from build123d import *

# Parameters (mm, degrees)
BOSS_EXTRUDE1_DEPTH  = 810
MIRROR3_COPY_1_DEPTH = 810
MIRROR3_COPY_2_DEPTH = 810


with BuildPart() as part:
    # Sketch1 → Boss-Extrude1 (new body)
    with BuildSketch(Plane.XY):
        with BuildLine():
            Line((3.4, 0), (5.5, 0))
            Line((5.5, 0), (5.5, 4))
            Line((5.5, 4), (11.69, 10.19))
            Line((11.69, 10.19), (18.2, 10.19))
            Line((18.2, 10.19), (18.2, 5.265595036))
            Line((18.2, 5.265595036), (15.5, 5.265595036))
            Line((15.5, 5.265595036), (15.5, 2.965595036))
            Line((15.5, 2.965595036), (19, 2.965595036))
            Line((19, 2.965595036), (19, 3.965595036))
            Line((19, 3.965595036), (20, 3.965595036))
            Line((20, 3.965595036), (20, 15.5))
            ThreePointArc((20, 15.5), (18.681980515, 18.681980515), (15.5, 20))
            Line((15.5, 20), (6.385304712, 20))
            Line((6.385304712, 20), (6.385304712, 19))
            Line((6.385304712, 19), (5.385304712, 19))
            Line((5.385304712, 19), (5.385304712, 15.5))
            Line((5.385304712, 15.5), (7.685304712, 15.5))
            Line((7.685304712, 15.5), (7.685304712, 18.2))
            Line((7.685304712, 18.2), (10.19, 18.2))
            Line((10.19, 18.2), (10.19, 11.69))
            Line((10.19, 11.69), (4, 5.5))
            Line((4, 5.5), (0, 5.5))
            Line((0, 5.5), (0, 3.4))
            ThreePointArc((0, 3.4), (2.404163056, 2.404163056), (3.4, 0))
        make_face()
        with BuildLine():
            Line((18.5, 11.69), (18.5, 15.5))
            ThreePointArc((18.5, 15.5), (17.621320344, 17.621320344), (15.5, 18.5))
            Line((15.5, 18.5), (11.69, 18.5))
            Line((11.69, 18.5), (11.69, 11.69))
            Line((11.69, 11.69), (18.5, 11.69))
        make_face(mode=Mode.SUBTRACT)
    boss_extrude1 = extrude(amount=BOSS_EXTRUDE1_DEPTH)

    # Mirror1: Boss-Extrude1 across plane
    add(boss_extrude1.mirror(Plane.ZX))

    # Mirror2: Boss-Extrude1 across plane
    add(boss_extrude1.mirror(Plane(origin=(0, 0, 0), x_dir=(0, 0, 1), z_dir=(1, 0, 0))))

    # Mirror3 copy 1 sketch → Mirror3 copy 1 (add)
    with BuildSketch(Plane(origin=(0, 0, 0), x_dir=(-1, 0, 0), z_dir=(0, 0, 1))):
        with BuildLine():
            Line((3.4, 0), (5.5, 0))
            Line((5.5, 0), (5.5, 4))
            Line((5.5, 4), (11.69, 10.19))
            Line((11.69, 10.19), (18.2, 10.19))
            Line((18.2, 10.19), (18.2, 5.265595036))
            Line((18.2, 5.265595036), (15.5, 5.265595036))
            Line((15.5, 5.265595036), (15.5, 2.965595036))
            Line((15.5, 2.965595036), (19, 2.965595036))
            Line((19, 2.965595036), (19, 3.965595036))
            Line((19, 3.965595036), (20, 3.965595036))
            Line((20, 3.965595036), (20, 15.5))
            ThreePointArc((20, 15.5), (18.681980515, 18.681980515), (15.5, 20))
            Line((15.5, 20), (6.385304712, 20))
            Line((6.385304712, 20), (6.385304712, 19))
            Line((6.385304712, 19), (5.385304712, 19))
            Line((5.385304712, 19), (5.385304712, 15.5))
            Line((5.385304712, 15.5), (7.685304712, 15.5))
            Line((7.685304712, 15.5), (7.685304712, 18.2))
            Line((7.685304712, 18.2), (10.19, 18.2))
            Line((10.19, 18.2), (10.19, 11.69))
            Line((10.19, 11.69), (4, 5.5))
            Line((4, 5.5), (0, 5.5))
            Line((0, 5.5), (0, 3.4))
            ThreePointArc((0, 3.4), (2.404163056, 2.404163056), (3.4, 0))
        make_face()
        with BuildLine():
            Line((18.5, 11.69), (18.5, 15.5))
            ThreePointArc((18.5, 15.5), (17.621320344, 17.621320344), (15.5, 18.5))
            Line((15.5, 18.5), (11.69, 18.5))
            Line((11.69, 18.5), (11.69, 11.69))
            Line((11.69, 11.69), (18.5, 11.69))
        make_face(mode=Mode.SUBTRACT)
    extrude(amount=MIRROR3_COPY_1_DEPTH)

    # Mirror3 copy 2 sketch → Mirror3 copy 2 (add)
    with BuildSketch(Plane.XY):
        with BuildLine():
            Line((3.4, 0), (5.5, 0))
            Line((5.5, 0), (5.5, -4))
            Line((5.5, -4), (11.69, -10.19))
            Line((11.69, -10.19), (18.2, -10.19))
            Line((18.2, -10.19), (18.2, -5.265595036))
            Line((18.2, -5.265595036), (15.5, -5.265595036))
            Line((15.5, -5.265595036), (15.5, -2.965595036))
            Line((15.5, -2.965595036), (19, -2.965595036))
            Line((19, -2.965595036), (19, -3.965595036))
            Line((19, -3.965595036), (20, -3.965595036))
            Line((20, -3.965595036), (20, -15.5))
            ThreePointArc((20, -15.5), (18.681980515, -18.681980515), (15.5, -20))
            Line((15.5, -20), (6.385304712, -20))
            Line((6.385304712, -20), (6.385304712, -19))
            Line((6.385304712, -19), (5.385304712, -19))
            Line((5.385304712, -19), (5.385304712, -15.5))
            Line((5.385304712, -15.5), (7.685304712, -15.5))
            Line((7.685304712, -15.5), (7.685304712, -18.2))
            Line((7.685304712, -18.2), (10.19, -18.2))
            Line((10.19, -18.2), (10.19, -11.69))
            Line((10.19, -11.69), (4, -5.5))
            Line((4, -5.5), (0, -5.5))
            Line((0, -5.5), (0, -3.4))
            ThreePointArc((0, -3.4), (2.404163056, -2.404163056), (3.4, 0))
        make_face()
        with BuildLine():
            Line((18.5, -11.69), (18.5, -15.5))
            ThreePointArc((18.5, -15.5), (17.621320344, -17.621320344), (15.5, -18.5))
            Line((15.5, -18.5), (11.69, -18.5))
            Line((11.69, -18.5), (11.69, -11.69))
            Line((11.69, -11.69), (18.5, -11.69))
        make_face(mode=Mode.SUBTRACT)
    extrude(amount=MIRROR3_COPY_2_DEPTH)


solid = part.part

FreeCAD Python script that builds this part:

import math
import FreeCAD as App
import Part
import Sketcher
from FreeCAD import Vector
Q = App.Units.Quantity

doc = App.newDocument("Part")
params = doc.addObject("Spreadsheet::Sheet", "Params")
for row, (alias, value) in enumerate([
    ("sketch1_radius", "3 mm"),
    ("sketch1_radius2", "4.5 mm"),
    ("sketch1_radius3", "3.4 mm"),
    ("sketch1_width", "1 mm"),
    ("sketch1_width2", "4 mm"),
    ("pad1_length", "810 mm"),
    ("sketch2_radius", "3 mm"),
    ("sketch2_radius2", "4.5 mm"),
    ("sketch2_radius3", "3.4 mm"),
    ("sketch2_width", "1 mm"),
    ("sketch2_width2", "4 mm"),
    ("pad2_length", "810 mm"),
    ("sketch3_radius", "3 mm"),
    ("sketch3_radius2", "3.4 mm"),
    ("sketch3_radius3", "4.5 mm"),
    ("sketch3_width", "4 mm"),
    ("sketch3_width2", "1 mm"),
    ("pad3_length", "810 mm"),
], start=1):
    params.set(f"A{row}", alias)
    params.set(f"B{row}", "=" + value)
    params.setAlias(f"B{row}", alias)

body = doc.addObject("PartDesign::Body", "Body")

sketch1 = body.newObject("Sketcher::SketchObject", "Sketch")
sketch1.AttachmentSupport = (doc.getObject("XY_Plane"), [""])
sketch1.MapMode = "FlatFace"
sketch1.addGeometry(Part.LineSegment(Vector(3.4, 0, 0), Vector(5.5, 0, 0)), False)
sketch1.addGeometry(Part.LineSegment(Vector(5.5, 0, 0), Vector(5.5, 4, 0)), False)
sketch1.addGeometry(Part.LineSegment(Vector(5.5, 4, 0), Vector(11.7, 10.2, 0)), False)
sketch1.addGeometry(Part.LineSegment(Vector(11.7, 10.2, 0), Vector(18.2, 10.2, 0)), False)
sketch1.addGeometry(Part.LineSegment(Vector(18.2, 10.2, 0), Vector(18.2, 5.3, 0)), False)
sketch1.addGeometry(Part.LineSegment(Vector(18.2, 5.3, 0), Vector(15.5, 5.3, 0)), False)
sketch1.addGeometry(Part.LineSegment(Vector(15.5, 5.3, 0), Vector(15.5, 3, 0)), False)
sketch1.addGeometry(Part.LineSegment(Vector(15.5, 3, 0), Vector(19, 3, 0)), False)
sketch1.addGeometry(Part.LineSegment(Vector(19, 3, 0), Vector(19, 4, 0)), False)
sketch1.addGeometry(Part.LineSegment(Vector(19, 4, 0), Vector(20, 4, 0)), False)
sketch1.addGeometry(Part.LineSegment(Vector(20, 4, 0), Vector(20, 15.5, 0)), False)
sketch1.addGeometry(Part.ArcOfCircle(Part.Circle(Vector(15.5, 15.5, 0), Vector(0, 0, 1), 4.5), math.radians(0), math.radians(90)), False)
sketch1.addGeometry(Part.LineSegment(Vector(15.5, 20, 0), Vector(6.4, 20, 0)), False)
sketch1.addGeometry(Part.LineSegment(Vector(6.4, 20, 0), Vector(6.4, 19, 0)), False)
sketch1.addGeometry(Part.LineSegment(Vector(6.4, 19, 0), Vector(5.4, 19, 0)), False)
sketch1.addGeometry(Part.LineSegment(Vector(5.4, 19, 0), Vector(5.4, 15.5, 0)), False)
sketch1.addGeometry(Part.LineSegment(Vector(5.4, 15.5, 0), Vector(7.7, 15.5, 0)), False)
sketch1.addGeometry(Part.LineSegment(Vector(7.7, 15.5, 0), Vector(7.7, 18.2, 0)), False)
sketch1.addGeometry(Part.LineSegment(Vector(7.7, 18.2, 0), Vector(10.2, 18.2, 0)), False)
sketch1.addGeometry(Part.LineSegment(Vector(10.2, 18.2, 0), Vector(10.2, 11.7, 0)), False)
sketch1.addGeometry(Part.LineSegment(Vector(10.2, 11.7, 0), Vector(4, 5.5, 0)), False)
sketch1.addGeometry(Part.LineSegment(Vector(4, 5.5, 0), Vector(0, 5.5, 0)), False)
sketch1.addGeometry(Part.LineSegment(Vector(0, 5.5, 0), Vector(0, 3.4, 0)), False)
sketch1.addGeometry(Part.ArcOfCircle(Part.Circle(Vector(0, 0, 0), Vector(0, 0, 1), 3.4), math.radians(0), math.radians(90)), False)
sketch1.addGeometry(Part.LineSegment(Vector(18.5, 15.5, 0), Vector(18.5, 11.7, 0)), False)
sketch1.addGeometry(Part.LineSegment(Vector(18.5, 11.7, 0), Vector(11.7, 11.7, 0)), False)
sketch1.addGeometry(Part.LineSegment(Vector(11.7, 11.7, 0), Vector(11.7, 18.5, 0)), False)
sketch1.addGeometry(Part.LineSegment(Vector(11.7, 18.5, 0), Vector(15.5, 18.5, 0)), False)
sketch1.addGeometry(Part.ArcOfCircle(Part.Circle(Vector(15.5, 15.5, 0), Vector(0, 0, 1), 3), math.radians(0), math.radians(90)), False)
sketch1.addConstraint(Sketcher.Constraint("Coincident", 0, 2, 1, 1))
sketch1.addConstraint(Sketcher.Constraint("Coincident", 1, 2, 2, 1))
sketch1.addConstraint(Sketcher.Constraint("Coincident", 2, 2, 3, 1))
sketch1.addConstraint(Sketcher.Constraint("Coincident", 3, 2, 4, 1))
sketch1.addConstraint(Sketcher.Constraint("Coincident", 4, 2, 5, 1))
sketch1.addConstraint(Sketcher.Constraint("Coincident", 5, 2, 6, 1))
sketch1.addConstraint(Sketcher.Constraint("Coincident", 6, 2, 7, 1))
sketch1.addConstraint(Sketcher.Constraint("Coincident", 7, 2, 8, 1))
sketch1.addConstraint(Sketcher.Constraint("Coincident", 8, 2, 9, 1))
sketch1.addConstraint(Sketcher.Constraint("Coincident", 9, 2, 10, 1))
sketch1.addConstraint(Sketcher.Constraint("Tangent", 10, 2, 11, 1))
sketch1.addConstraint(Sketcher.Constraint("Tangent", 11, 2, 12, 1))
sketch1.addConstraint(Sketcher.Constraint("Coincident", 12, 2, 13, 1))
sketch1.addConstraint(Sketcher.Constraint("Coincident", 13, 2, 14, 1))
sketch1.addConstraint(Sketcher.Constraint("Coincident", 14, 2, 15, 1))
sketch1.addConstraint(Sketcher.Constraint("Coincident", 15, 2, 16, 1))
sketch1.addConstraint(Sketcher.Constraint("Coincident", 16, 2, 17, 1))
sketch1.addConstraint(Sketcher.Constraint("Coincident", 17, 2, 18, 1))
sketch1.addConstraint(Sketcher.Constraint("Coincident", 18, 2, 19, 1))
sketch1.addConstraint(Sketcher.Constraint("Coincident", 19, 2, 20, 1))
sketch1.addConstraint(Sketcher.Constraint("Coincident", 20, 2, 21, 1))
sketch1.addConstraint(Sketcher.Constraint("Coincident", 21, 2, 22, 1))
sketch1.addConstraint(Sketcher.Constraint("Coincident", 22, 2, 23, 2))
sketch1.addConstraint(Sketcher.Constraint("Coincident", 23, 1, 0, 1))
sketch1.addConstraint(Sketcher.Constraint("Coincident", 24, 2, 25, 1))
sketch1.addConstraint(Sketcher.Constraint("Coincident", 25, 2, 26, 1))
sketch1.addConstraint(Sketcher.Constraint("Coincident", 26, 2, 27, 1))
sketch1.addConstraint(Sketcher.Constraint("Tangent", 27, 2, 28, 2))
sketch1.addConstraint(Sketcher.Constraint("Tangent", 28, 1, 24, 1))
sketch1.addConstraint(Sketcher.Constraint("Horizontal", 0))
sketch1.addConstraint(Sketcher.Constraint("Vertical", 1))
sketch1.addConstraint(Sketcher.Constraint("Horizontal", 3))
sketch1.addConstraint(Sketcher.Constraint("Vertical", 4))
sketch1.addConstraint(Sketcher.Constraint("Horizontal", 5))
sketch1.addConstraint(Sketcher.Constraint("Vertical", 6))
sketch1.addConstraint(Sketcher.Constraint("Horizontal", 7))
sketch1.addConstraint(Sketcher.Constraint("Vertical", 8))
sketch1.addConstraint(Sketcher.Constraint("Horizontal", 9))
sketch1.addConstraint(Sketcher.Constraint("Vertical", 10))
sketch1.addConstraint(Sketcher.Constraint("Horizontal", 12))
sketch1.addConstraint(Sketcher.Constraint("Vertical", 13))
sketch1.addConstraint(Sketcher.Constraint("Horizontal", 14))
sketch1.addConstraint(Sketcher.Constraint("Vertical", 15))
sketch1.addConstraint(Sketcher.Constraint("Horizontal", 16))
sketch1.addConstraint(Sketcher.Constraint("Vertical", 17))
sketch1.addConstraint(Sketcher.Constraint("Horizontal", 18))
sketch1.addConstraint(Sketcher.Constraint("Vertical", 19))
sketch1.addConstraint(Sketcher.Constraint("Horizontal", 21))
sketch1.addConstraint(Sketcher.Constraint("Vertical", 22))
sketch1.addConstraint(Sketcher.Constraint("Vertical", 24))
sketch1.addConstraint(Sketcher.Constraint("Horizontal", 25))
sketch1.addConstraint(Sketcher.Constraint("Vertical", 26))
sketch1.addConstraint(Sketcher.Constraint("Horizontal", 27))
sketch1.addConstraint(Sketcher.Constraint("Coincident", 23, 3, -1, 1))
sketch1.addConstraint(Sketcher.Constraint("Coincident", 28, 3, 11, 3))
sketch1.addConstraint(Sketcher.Constraint("PointOnObject", 0, 2, -1))
sketch1.addConstraint(Sketcher.Constraint("PointOnObject", 21, 2, -2))
sketch1.addConstraint(Sketcher.Constraint("Parallel", 2, 20))
sketch1.addConstraint(Sketcher.Constraint("Horizontal", 10, 2, 15, 2))
sketch1.addConstraint(Sketcher.Constraint("Horizontal", 19, 2, 24, 2))
sketch1.addConstraint(Sketcher.Constraint("Vertical", 28, 3, 5, 2))
sketch1.addConstraint(Sketcher.Constraint("Vertical", 2, 2, 25, 2))
sketch1.addConstraint(Sketcher.Constraint("Equal", 9, 14))
sketch1.addConstraint(Sketcher.Constraint("Equal", 21, 1))
sketch1.addConstraint(Sketcher.Constraint("Equal", 16, 6))
sketch1.addConstraint(Sketcher.Constraint("Equal", 14, 8))
sketch1.addConstraint(Sketcher.Constraint("Equal", 8, 13))
sketch1.addConstraint(Sketcher.Constraint("Equal", 5, 17))
sketch1.addConstraint(Sketcher.Constraint("Equal", 3, 19))
sketch1.addConstraint(Sketcher.Constraint("Equal", 0, 22))
sketch1.addConstraint(Sketcher.Constraint("Equal", 2, 20))
sketch1.addConstraint(Sketcher.Constraint("Radius", 28, 3.0))
sketch1.addConstraint(Sketcher.Constraint("Radius", 11, 4.5))
sketch1.addConstraint(Sketcher.Constraint("Radius", 23, 3.4))
sketch1.addConstraint(Sketcher.Constraint("DistanceX", 9, 1, 9, 2, 1.0))
sketch1.addConstraint(Sketcher.Constraint("DistanceX", 21, 2, 21, 1, 4.0))
sketch1.addConstraint(Sketcher.Constraint("Angle", 2, Q("45 deg")))
sketch1.addConstraint(Sketcher.Constraint("DistanceX", 0, 1, 0, 2, 2.1))
sketch1.addConstraint(Sketcher.Constraint("DistanceX", 5, 2, 5, 1, 2.7))
sketch1.addConstraint(Sketcher.Constraint("DistanceX", 16, 1, 16, 2, 2.3))
sketch1.addConstraint(Sketcher.Constraint("DistanceX", -1, 1, 7, 2, 19.0))
sketch1.addConstraint(Sketcher.Constraint("DistanceX", 3, 1, 3, 2, 6.51))
sketch1.addConstraint(Sketcher.Constraint("DistanceX", 12, 2, 12, 1, 9.114695))
sketch1.addConstraint(Sketcher.Constraint("DistanceY", 4, 2, 4, 1, 4.924405))
sketch1.setExpression("Constraints[71]", "Params.sketch1_radius")
sketch1.setExpression("Constraints[72]", "Params.sketch1_radius2")
sketch1.setExpression("Constraints[73]", "Params.sketch1_radius3")
sketch1.setExpression("Constraints[74]", "Params.sketch1_width")
sketch1.setExpression("Constraints[75]", "Params.sketch1_width2")
pad1 = body.newObject("PartDesign::Pad", "Pad")
pad1.Profile = sketch1
pad1.setExpression("Length", "Params.pad1_length")
doc.recompute()

mirrored = body.newObject("PartDesign::Mirrored", "Mirrored")
mirrored.Originals = [pad1]
mirrored.MirrorPlane = (doc.getObject("XZ_Plane"), [""])
body.Tip = mirrored
doc.recompute()

mirrored2 = body.newObject("PartDesign::Mirrored", "Mirrored001")
mirrored2.Originals = [pad1]
mirrored2.MirrorPlane = (doc.getObject("YZ_Plane"), [""])
body.Tip = mirrored2

sketch2 = body.newObject("Sketcher::SketchObject", "Sketch001")
sketch2.AttachmentSupport = (doc.getObject("XY_Plane"), [""])
sketch2.MapMode = "FlatFace"
sketch2.addGeometry(Part.LineSegment(Vector(-3.4, 0, 0), Vector(-5.5, 0, 0)), False)
sketch2.addGeometry(Part.LineSegment(Vector(-5.5, 0, 0), Vector(-5.5, -4, 0)), False)
sketch2.addGeometry(Part.LineSegment(Vector(-5.5, -4, 0), Vector(-11.7, -10.2, 0)), False)
sketch2.addGeometry(Part.LineSegment(Vector(-11.7, -10.2, 0), Vector(-18.2, -10.2, 0)), False)
sketch2.addGeometry(Part.LineSegment(Vector(-18.2, -10.2, 0), Vector(-18.2, -5.3, 0)), False)
sketch2.addGeometry(Part.LineSegment(Vector(-18.2, -5.3, 0), Vector(-15.5, -5.3, 0)), False)
sketch2.addGeometry(Part.LineSegment(Vector(-15.5, -5.3, 0), Vector(-15.5, -3, 0)), False)
sketch2.addGeometry(Part.LineSegment(Vector(-15.5, -3, 0), Vector(-19, -3, 0)), False)
sketch2.addGeometry(Part.LineSegment(Vector(-19, -3, 0), Vector(-19, -4, 0)), False)
sketch2.addGeometry(Part.LineSegment(Vector(-19, -4, 0), Vector(-20, -4, 0)), False)
sketch2.addGeometry(Part.LineSegment(Vector(-20, -4, 0), Vector(-20, -15.5, 0)), False)
sketch2.addGeometry(Part.ArcOfCircle(Part.Circle(Vector(-15.5, -15.5, 0), Vector(0, 0, 1), 4.5), math.radians(-180), math.radians(-90)), False)
sketch2.addGeometry(Part.LineSegment(Vector(-15.5, -20, 0), Vector(-6.4, -20, 0)), False)
sketch2.addGeometry(Part.LineSegment(Vector(-6.4, -20, 0), Vector(-6.4, -19, 0)), False)
sketch2.addGeometry(Part.LineSegment(Vector(-6.4, -19, 0), Vector(-5.4, -19, 0)), False)
sketch2.addGeometry(Part.LineSegment(Vector(-5.4, -19, 0), Vector(-5.4, -15.5, 0)), False)
sketch2.addGeometry(Part.LineSegment(Vector(-5.4, -15.5, 0), Vector(-7.7, -15.5, 0)), False)
sketch2.addGeometry(Part.LineSegment(Vector(-7.7, -15.5, 0), Vector(-7.7, -18.2, 0)), False)
sketch2.addGeometry(Part.LineSegment(Vector(-7.7, -18.2, 0), Vector(-10.2, -18.2, 0)), False)
sketch2.addGeometry(Part.LineSegment(Vector(-10.2, -18.2, 0), Vector(-10.2, -11.7, 0)), False)
sketch2.addGeometry(Part.LineSegment(Vector(-10.2, -11.7, 0), Vector(-4, -5.5, 0)), False)
sketch2.addGeometry(Part.LineSegment(Vector(-4, -5.5, 0), Vector(0, -5.5, 0)), False)
sketch2.addGeometry(Part.LineSegment(Vector(0, -5.5, 0), Vector(0, -3.4, 0)), False)
sketch2.addGeometry(Part.ArcOfCircle(Part.Circle(Vector(0, 0, 0), Vector(0, 0, 1), 3.4), math.radians(180), math.radians(270)), False)
sketch2.addGeometry(Part.LineSegment(Vector(-18.5, -15.5, 0), Vector(-18.5, -11.7, 0)), False)
sketch2.addGeometry(Part.LineSegment(Vector(-18.5, -11.7, 0), Vector(-11.7, -11.7, 0)), False)
sketch2.addGeometry(Part.LineSegment(Vector(-11.7, -11.7, 0), Vector(-11.7, -18.5, 0)), False)
sketch2.addGeometry(Part.LineSegment(Vector(-11.7, -18.5, 0), Vector(-15.5, -18.5, 0)), False)
sketch2.addGeometry(Part.ArcOfCircle(Part.Circle(Vector(-15.5, -15.5, 0), Vector(0, 0, 1), 3), math.radians(180), math.radians(270)), False)
sketch2.addConstraint(Sketcher.Constraint("Coincident", 0, 2, 1, 1))
sketch2.addConstraint(Sketcher.Constraint("Coincident", 1, 2, 2, 1))
sketch2.addConstraint(Sketcher.Constraint("Coincident", 2, 2, 3, 1))
sketch2.addConstraint(Sketcher.Constraint("Coincident", 3, 2, 4, 1))
sketch2.addConstraint(Sketcher.Constraint("Coincident", 4, 2, 5, 1))
sketch2.addConstraint(Sketcher.Constraint("Coincident", 5, 2, 6, 1))
sketch2.addConstraint(Sketcher.Constraint("Coincident", 6, 2, 7, 1))
sketch2.addConstraint(Sketcher.Constraint("Coincident", 7, 2, 8, 1))
sketch2.addConstraint(Sketcher.Constraint("Coincident", 8, 2, 9, 1))
sketch2.addConstraint(Sketcher.Constraint("Coincident", 9, 2, 10, 1))
sketch2.addConstraint(Sketcher.Constraint("Tangent", 10, 2, 11, 1))
sketch2.addConstraint(Sketcher.Constraint("Tangent", 11, 2, 12, 1))
sketch2.addConstraint(Sketcher.Constraint("Coincident", 12, 2, 13, 1))
sketch2.addConstraint(Sketcher.Constraint("Coincident", 13, 2, 14, 1))
sketch2.addConstraint(Sketcher.Constraint("Coincident", 14, 2, 15, 1))
sketch2.addConstraint(Sketcher.Constraint("Coincident", 15, 2, 16, 1))
sketch2.addConstraint(Sketcher.Constraint("Coincident", 16, 2, 17, 1))
sketch2.addConstraint(Sketcher.Constraint("Coincident", 17, 2, 18, 1))
sketch2.addConstraint(Sketcher.Constraint("Coincident", 18, 2, 19, 1))
sketch2.addConstraint(Sketcher.Constraint("Coincident", 19, 2, 20, 1))
sketch2.addConstraint(Sketcher.Constraint("Coincident", 20, 2, 21, 1))
sketch2.addConstraint(Sketcher.Constraint("Coincident", 21, 2, 22, 1))
sketch2.addConstraint(Sketcher.Constraint("Coincident", 22, 2, 23, 2))
sketch2.addConstraint(Sketcher.Constraint("Coincident", 23, 1, 0, 1))
sketch2.addConstraint(Sketcher.Constraint("Coincident", 24, 2, 25, 1))
sketch2.addConstraint(Sketcher.Constraint("Coincident", 25, 2, 26, 1))
sketch2.addConstraint(Sketcher.Constraint("Coincident", 26, 2, 27, 1))
sketch2.addConstraint(Sketcher.Constraint("Tangent", 27, 2, 28, 2))
sketch2.addConstraint(Sketcher.Constraint("Tangent", 28, 1, 24, 1))
sketch2.addConstraint(Sketcher.Constraint("Horizontal", 0))
sketch2.addConstraint(Sketcher.Constraint("Vertical", 1))
sketch2.addConstraint(Sketcher.Constraint("Horizontal", 3))
sketch2.addConstraint(Sketcher.Constraint("Vertical", 4))
sketch2.addConstraint(Sketcher.Constraint("Horizontal", 5))
sketch2.addConstraint(Sketcher.Constraint("Vertical", 6))
sketch2.addConstraint(Sketcher.Constraint("Horizontal", 7))
sketch2.addConstraint(Sketcher.Constraint("Vertical", 8))
sketch2.addConstraint(Sketcher.Constraint("Horizontal", 9))
sketch2.addConstraint(Sketcher.Constraint("Vertical", 10))
sketch2.addConstraint(Sketcher.Constraint("Horizontal", 12))
sketch2.addConstraint(Sketcher.Constraint("Vertical", 13))
sketch2.addConstraint(Sketcher.Constraint("Horizontal", 14))
sketch2.addConstraint(Sketcher.Constraint("Vertical", 15))
sketch2.addConstraint(Sketcher.Constraint("Horizontal", 16))
sketch2.addConstraint(Sketcher.Constraint("Vertical", 17))
sketch2.addConstraint(Sketcher.Constraint("Horizontal", 18))
sketch2.addConstraint(Sketcher.Constraint("Vertical", 19))
sketch2.addConstraint(Sketcher.Constraint("Horizontal", 21))
sketch2.addConstraint(Sketcher.Constraint("Vertical", 22))
sketch2.addConstraint(Sketcher.Constraint("Vertical", 24))
sketch2.addConstraint(Sketcher.Constraint("Horizontal", 25))
sketch2.addConstraint(Sketcher.Constraint("Vertical", 26))
sketch2.addConstraint(Sketcher.Constraint("Horizontal", 27))
sketch2.addConstraint(Sketcher.Constraint("Coincident", 23, 3, -1, 1))
sketch2.addConstraint(Sketcher.Constraint("Coincident", 28, 3, 11, 3))
sketch2.addConstraint(Sketcher.Constraint("PointOnObject", 0, 2, -1))
sketch2.addConstraint(Sketcher.Constraint("PointOnObject", 21, 2, -2))
sketch2.addConstraint(Sketcher.Constraint("Parallel", 2, 20))
sketch2.addConstraint(Sketcher.Constraint("Horizontal", 10, 2, 15, 2))
sketch2.addConstraint(Sketcher.Constraint("Horizontal", 19, 2, 24, 2))
sketch2.addConstraint(Sketcher.Constraint("Vertical", 28, 3, 5, 2))
sketch2.addConstraint(Sketcher.Constraint("Vertical", 2, 2, 25, 2))
sketch2.addConstraint(Sketcher.Constraint("Equal", 9, 14))
sketch2.addConstraint(Sketcher.Constraint("Equal", 21, 1))
sketch2.addConstraint(Sketcher.Constraint("Equal", 16, 6))
sketch2.addConstraint(Sketcher.Constraint("Equal", 14, 8))
sketch2.addConstraint(Sketcher.Constraint("Equal", 8, 13))
sketch2.addConstraint(Sketcher.Constraint("Equal", 5, 17))
sketch2.addConstraint(Sketcher.Constraint("Equal", 3, 19))
sketch2.addConstraint(Sketcher.Constraint("Equal", 0, 22))
sketch2.addConstraint(Sketcher.Constraint("Equal", 2, 20))
sketch2.addConstraint(Sketcher.Constraint("Radius", 28, 3.0))
sketch2.addConstraint(Sketcher.Constraint("Radius", 11, 4.5))
sketch2.addConstraint(Sketcher.Constraint("Radius", 23, 3.4))
sketch2.addConstraint(Sketcher.Constraint("DistanceX", 9, 2, 9, 1, 1.0))
sketch2.addConstraint(Sketcher.Constraint("DistanceX", 21, 1, 21, 2, 4.0))
sketch2.addConstraint(Sketcher.Constraint("Angle", 2, Q("-135 deg")))
sketch2.addConstraint(Sketcher.Constraint("DistanceX", 0, 2, 0, 1, 2.1))
sketch2.addConstraint(Sketcher.Constraint("DistanceX", 5, 1, 5, 2, 2.7))
sketch2.addConstraint(Sketcher.Constraint("DistanceX", 16, 2, 16, 1, 2.3))
sketch2.addConstraint(Sketcher.Constraint("DistanceX", 7, 2, -1, 1, 19.0))
sketch2.addConstraint(Sketcher.Constraint("DistanceX", 3, 2, 3, 1, 6.51))
sketch2.addConstraint(Sketcher.Constraint("DistanceX", 12, 1, 12, 2, 9.114695))
sketch2.addConstraint(Sketcher.Constraint("DistanceY", 4, 1, 4, 2, 4.924405))
sketch2.setExpression("Constraints[71]", "Params.sketch2_radius")
sketch2.setExpression("Constraints[72]", "Params.sketch2_radius2")
sketch2.setExpression("Constraints[73]", "Params.sketch2_radius3")
sketch2.setExpression("Constraints[74]", "Params.sketch2_width")
sketch2.setExpression("Constraints[75]", "Params.sketch2_width2")
pad2 = body.newObject("PartDesign::Pad", "Pad001")
pad2.Profile = sketch2
pad2.setExpression("Length", "Params.pad2_length")

sketch3 = body.newObject("Sketcher::SketchObject", "Sketch002")
sketch3.AttachmentSupport = (doc.getObject("XY_Plane"), [""])
sketch3.MapMode = "FlatFace"
sketch3.addGeometry(Part.LineSegment(Vector(5.5, 0, 0), Vector(3.4, 0, 0)), False)
sketch3.addGeometry(Part.ArcOfCircle(Part.Circle(Vector(0, 0, 0), Vector(0, 0, 1), 3.4), math.radians(-90), math.radians(0)), False)
sketch3.addGeometry(Part.LineSegment(Vector(0, -3.4, 0), Vector(0, -5.5, 0)), False)
sketch3.addGeometry(Part.LineSegment(Vector(0, -5.5, 0), Vector(4, -5.5, 0)), False)
sketch3.addGeometry(Part.LineSegment(Vector(4, -5.5, 0), Vector(10.2, -11.7, 0)), False)
sketch3.addGeometry(Part.LineSegment(Vector(10.2, -11.7, 0), Vector(10.2, -18.2, 0)), False)
sketch3.addGeometry(Part.LineSegment(Vector(10.2, -18.2, 0), Vector(7.7, -18.2, 0)), False)
sketch3.addGeometry(Part.LineSegment(Vector(7.7, -18.2, 0), Vector(7.7, -15.5, 0)), False)
sketch3.addGeometry(Part.LineSegment(Vector(7.7, -15.5, 0), Vector(5.4, -15.5, 0)), False)
sketch3.addGeometry(Part.LineSegment(Vector(5.4, -15.5, 0), Vector(5.4, -19, 0)), False)
sketch3.addGeometry(Part.LineSegment(Vector(5.4, -19, 0), Vector(6.4, -19, 0)), False)
sketch3.addGeometry(Part.LineSegment(Vector(6.4, -19, 0), Vector(6.4, -20, 0)), False)
sketch3.addGeometry(Part.LineSegment(Vector(6.4, -20, 0), Vector(15.5, -20, 0)), False)
sketch3.addGeometry(Part.ArcOfCircle(Part.Circle(Vector(15.5, -15.5, 0), Vector(0, 0, 1), 4.5), math.radians(-90), math.radians(0)), False)
sketch3.addGeometry(Part.LineSegment(Vector(20, -15.5, 0), Vector(20, -4, 0)), False)
sketch3.addGeometry(Part.LineSegment(Vector(20, -4, 0), Vector(19, -4, 0)), False)
sketch3.addGeometry(Part.LineSegment(Vector(19, -4, 0), Vector(19, -3, 0)), False)
sketch3.addGeometry(Part.LineSegment(Vector(19, -3, 0), Vector(15.5, -3, 0)), False)
sketch3.addGeometry(Part.LineSegment(Vector(15.5, -3, 0), Vector(15.5, -5.3, 0)), False)
sketch3.addGeometry(Part.LineSegment(Vector(15.5, -5.3, 0), Vector(18.2, -5.3, 0)), False)
sketch3.addGeometry(Part.LineSegment(Vector(18.2, -5.3, 0), Vector(18.2, -10.2, 0)), False)
sketch3.addGeometry(Part.LineSegment(Vector(18.2, -10.2, 0), Vector(11.7, -10.2, 0)), False)
sketch3.addGeometry(Part.LineSegment(Vector(11.7, -10.2, 0), Vector(5.5, -4, 0)), False)
sketch3.addGeometry(Part.LineSegment(Vector(5.5, -4, 0), Vector(5.5, 0, 0)), False)
sketch3.addGeometry(Part.LineSegment(Vector(18.5, -11.7, 0), Vector(18.5, -15.5, 0)), False)
sketch3.addGeometry(Part.ArcOfCircle(Part.Circle(Vector(15.5, -15.5, 0), Vector(0, 0, 1), 3), math.radians(-90), math.radians(0)), False)
sketch3.addGeometry(Part.LineSegment(Vector(15.5, -18.5, 0), Vector(11.7, -18.5, 0)), False)
sketch3.addGeometry(Part.LineSegment(Vector(11.7, -18.5, 0), Vector(11.7, -11.7, 0)), False)
sketch3.addGeometry(Part.LineSegment(Vector(11.7, -11.7, 0), Vector(18.5, -11.7, 0)), False)
sketch3.addConstraint(Sketcher.Constraint("Coincident", 0, 2, 1, 2))
sketch3.addConstraint(Sketcher.Constraint("Coincident", 1, 1, 2, 1))
sketch3.addConstraint(Sketcher.Constraint("Coincident", 2, 2, 3, 1))
sketch3.addConstraint(Sketcher.Constraint("Coincident", 3, 2, 4, 1))
sketch3.addConstraint(Sketcher.Constraint("Coincident", 4, 2, 5, 1))
sketch3.addConstraint(Sketcher.Constraint("Coincident", 5, 2, 6, 1))
sketch3.addConstraint(Sketcher.Constraint("Coincident", 6, 2, 7, 1))
sketch3.addConstraint(Sketcher.Constraint("Coincident", 7, 2, 8, 1))
sketch3.addConstraint(Sketcher.Constraint("Coincident", 8, 2, 9, 1))
sketch3.addConstraint(Sketcher.Constraint("Coincident", 9, 2, 10, 1))
sketch3.addConstraint(Sketcher.Constraint("Coincident", 10, 2, 11, 1))
sketch3.addConstraint(Sketcher.Constraint("Coincident", 11, 2, 12, 1))
sketch3.addConstraint(Sketcher.Constraint("Tangent", 12, 2, 13, 1))
sketch3.addConstraint(Sketcher.Constraint("Tangent", 13, 2, 14, 1))
sketch3.addConstraint(Sketcher.Constraint("Coincident", 14, 2, 15, 1))
sketch3.addConstraint(Sketcher.Constraint("Coincident", 15, 2, 16, 1))
sketch3.addConstraint(Sketcher.Constraint("Coincident", 16, 2, 17, 1))
sketch3.addConstraint(Sketcher.Constraint("Coincident", 17, 2, 18, 1))
sketch3.addConstraint(Sketcher.Constraint("Coincident", 18, 2, 19, 1))
sketch3.addConstraint(Sketcher.Constraint("Coincident", 19, 2, 20, 1))
sketch3.addConstraint(Sketcher.Constraint("Coincident", 20, 2, 21, 1))
sketch3.addConstraint(Sketcher.Constraint("Coincident", 21, 2, 22, 1))
sketch3.addConstraint(Sketcher.Constraint("Coincident", 22, 2, 23, 1))
sketch3.addConstraint(Sketcher.Constraint("Coincident", 23, 2, 0, 1))
sketch3.addConstraint(Sketcher.Constraint("Tangent", 24, 2, 25, 2))
sketch3.addConstraint(Sketcher.Constraint("Tangent", 25, 1, 26, 1))
sketch3.addConstraint(Sketcher.Constraint("Coincident", 26, 2, 27, 1))
sketch3.addConstraint(Sketcher.Constraint("Coincident", 27, 2, 28, 1))
sketch3.addConstraint(Sketcher.Constraint("Coincident", 28, 2, 24, 1))
sketch3.addConstraint(Sketcher.Constraint("Horizontal", 0))
sketch3.addConstraint(Sketcher.Constraint("Vertical", 2))
sketch3.addConstraint(Sketcher.Constraint("Horizontal", 3))
sketch3.addConstraint(Sketcher.Constraint("Vertical", 5))
sketch3.addConstraint(Sketcher.Constraint("Horizontal", 6))
sketch3.addConstraint(Sketcher.Constraint("Vertical", 7))
sketch3.addConstraint(Sketcher.Constraint("Horizontal", 8))
sketch3.addConstraint(Sketcher.Constraint("Vertical", 9))
sketch3.addConstraint(Sketcher.Constraint("Horizontal", 10))
sketch3.addConstraint(Sketcher.Constraint("Vertical", 11))
sketch3.addConstraint(Sketcher.Constraint("Horizontal", 12))
sketch3.addConstraint(Sketcher.Constraint("Vertical", 14))
sketch3.addConstraint(Sketcher.Constraint("Horizontal", 15))
sketch3.addConstraint(Sketcher.Constraint("Vertical", 16))
sketch3.addConstraint(Sketcher.Constraint("Horizontal", 17))
sketch3.addConstraint(Sketcher.Constraint("Vertical", 18))
sketch3.addConstraint(Sketcher.Constraint("Horizontal", 19))
sketch3.addConstraint(Sketcher.Constraint("Vertical", 20))
sketch3.addConstraint(Sketcher.Constraint("Horizontal", 21))
sketch3.addConstraint(Sketcher.Constraint("Vertical", 23))
sketch3.addConstraint(Sketcher.Constraint("Vertical", 24))
sketch3.addConstraint(Sketcher.Constraint("Horizontal", 26))
sketch3.addConstraint(Sketcher.Constraint("Vertical", 27))
sketch3.addConstraint(Sketcher.Constraint("Horizontal", 28))
sketch3.addConstraint(Sketcher.Constraint("Coincident", 1, 3, -1, 1))
sketch3.addConstraint(Sketcher.Constraint("Coincident", 25, 3, 13, 3))
sketch3.addConstraint(Sketcher.Constraint("PointOnObject", 0, 2, -1))
sketch3.addConstraint(Sketcher.Constraint("PointOnObject", 1, 1, -2))
sketch3.addConstraint(Sketcher.Constraint("Parallel", 4, 22))
sketch3.addConstraint(Sketcher.Constraint("Horizontal", 25, 3, 7, 2))
sketch3.addConstraint(Sketcher.Constraint("Horizontal", 4, 2, 27, 2))
sketch3.addConstraint(Sketcher.Constraint("Vertical", 12, 2, 17, 2))
sketch3.addConstraint(Sketcher.Constraint("Vertical", 21, 2, 26, 2))
sketch3.addConstraint(Sketcher.Constraint("Equal", 10, 15))
sketch3.addConstraint(Sketcher.Constraint("Equal", 0, 2))
sketch3.addConstraint(Sketcher.Constraint("Equal", 21, 5))
sketch3.addConstraint(Sketcher.Constraint("Equal", 19, 7))
sketch3.addConstraint(Sketcher.Constraint("Equal", 17, 9))
sketch3.addConstraint(Sketcher.Constraint("Equal", 11, 16))
sketch3.addConstraint(Sketcher.Constraint("Equal", 8, 18))
sketch3.addConstraint(Sketcher.Constraint("Equal", 3, 23))
sketch3.addConstraint(Sketcher.Constraint("Equal", 4, 22))
sketch3.addConstraint(Sketcher.Constraint("Radius", 25, 3.0))
sketch3.addConstraint(Sketcher.Constraint("Radius", 1, 3.4))
sketch3.addConstraint(Sketcher.Constraint("Radius", 13, 4.5))
sketch3.addConstraint(Sketcher.Constraint("DistanceX", 3, 1, 3, 2, 4.0))
sketch3.addConstraint(Sketcher.Constraint("DistanceX", 10, 1, 10, 2, 1.0))
sketch3.addConstraint(Sketcher.Constraint("Angle", 4, Q("-45 deg")))
sketch3.addConstraint(Sketcher.Constraint("DistanceX", 0, 2, 0, 1, 2.1))
sketch3.addConstraint(Sketcher.Constraint("DistanceX", 8, 2, 8, 1, 2.3))
sketch3.addConstraint(Sketcher.Constraint("DistanceX", 19, 1, 19, 2, 2.7))
sketch3.addConstraint(Sketcher.Constraint("DistanceY", 9, 2, -1, 1, 19.0))
sketch3.addConstraint(Sketcher.Constraint("DistanceX", 21, 2, 21, 1, 6.51))
sketch3.addConstraint(Sketcher.Constraint("DistanceX", 6, 2, 6, 1, 2.504695))
sketch3.addConstraint(Sketcher.Constraint("DistanceY", 14, 1, 14, 2, 11.534405))
sketch3.setExpression("Constraints[71]", "Params.sketch3_radius")
sketch3.setExpression("Constraints[72]", "Params.sketch3_radius2")
sketch3.setExpression("Constraints[73]", "Params.sketch3_radius3")
sketch3.setExpression("Constraints[74]", "Params.sketch3_width")
sketch3.setExpression("Constraints[75]", "Params.sketch3_width2")
pad3 = body.newObject("PartDesign::Pad", "Pad002")
pad3.Profile = sketch3
pad3.setExpression("Length", "Params.pad3_length")

doc.recompute()
